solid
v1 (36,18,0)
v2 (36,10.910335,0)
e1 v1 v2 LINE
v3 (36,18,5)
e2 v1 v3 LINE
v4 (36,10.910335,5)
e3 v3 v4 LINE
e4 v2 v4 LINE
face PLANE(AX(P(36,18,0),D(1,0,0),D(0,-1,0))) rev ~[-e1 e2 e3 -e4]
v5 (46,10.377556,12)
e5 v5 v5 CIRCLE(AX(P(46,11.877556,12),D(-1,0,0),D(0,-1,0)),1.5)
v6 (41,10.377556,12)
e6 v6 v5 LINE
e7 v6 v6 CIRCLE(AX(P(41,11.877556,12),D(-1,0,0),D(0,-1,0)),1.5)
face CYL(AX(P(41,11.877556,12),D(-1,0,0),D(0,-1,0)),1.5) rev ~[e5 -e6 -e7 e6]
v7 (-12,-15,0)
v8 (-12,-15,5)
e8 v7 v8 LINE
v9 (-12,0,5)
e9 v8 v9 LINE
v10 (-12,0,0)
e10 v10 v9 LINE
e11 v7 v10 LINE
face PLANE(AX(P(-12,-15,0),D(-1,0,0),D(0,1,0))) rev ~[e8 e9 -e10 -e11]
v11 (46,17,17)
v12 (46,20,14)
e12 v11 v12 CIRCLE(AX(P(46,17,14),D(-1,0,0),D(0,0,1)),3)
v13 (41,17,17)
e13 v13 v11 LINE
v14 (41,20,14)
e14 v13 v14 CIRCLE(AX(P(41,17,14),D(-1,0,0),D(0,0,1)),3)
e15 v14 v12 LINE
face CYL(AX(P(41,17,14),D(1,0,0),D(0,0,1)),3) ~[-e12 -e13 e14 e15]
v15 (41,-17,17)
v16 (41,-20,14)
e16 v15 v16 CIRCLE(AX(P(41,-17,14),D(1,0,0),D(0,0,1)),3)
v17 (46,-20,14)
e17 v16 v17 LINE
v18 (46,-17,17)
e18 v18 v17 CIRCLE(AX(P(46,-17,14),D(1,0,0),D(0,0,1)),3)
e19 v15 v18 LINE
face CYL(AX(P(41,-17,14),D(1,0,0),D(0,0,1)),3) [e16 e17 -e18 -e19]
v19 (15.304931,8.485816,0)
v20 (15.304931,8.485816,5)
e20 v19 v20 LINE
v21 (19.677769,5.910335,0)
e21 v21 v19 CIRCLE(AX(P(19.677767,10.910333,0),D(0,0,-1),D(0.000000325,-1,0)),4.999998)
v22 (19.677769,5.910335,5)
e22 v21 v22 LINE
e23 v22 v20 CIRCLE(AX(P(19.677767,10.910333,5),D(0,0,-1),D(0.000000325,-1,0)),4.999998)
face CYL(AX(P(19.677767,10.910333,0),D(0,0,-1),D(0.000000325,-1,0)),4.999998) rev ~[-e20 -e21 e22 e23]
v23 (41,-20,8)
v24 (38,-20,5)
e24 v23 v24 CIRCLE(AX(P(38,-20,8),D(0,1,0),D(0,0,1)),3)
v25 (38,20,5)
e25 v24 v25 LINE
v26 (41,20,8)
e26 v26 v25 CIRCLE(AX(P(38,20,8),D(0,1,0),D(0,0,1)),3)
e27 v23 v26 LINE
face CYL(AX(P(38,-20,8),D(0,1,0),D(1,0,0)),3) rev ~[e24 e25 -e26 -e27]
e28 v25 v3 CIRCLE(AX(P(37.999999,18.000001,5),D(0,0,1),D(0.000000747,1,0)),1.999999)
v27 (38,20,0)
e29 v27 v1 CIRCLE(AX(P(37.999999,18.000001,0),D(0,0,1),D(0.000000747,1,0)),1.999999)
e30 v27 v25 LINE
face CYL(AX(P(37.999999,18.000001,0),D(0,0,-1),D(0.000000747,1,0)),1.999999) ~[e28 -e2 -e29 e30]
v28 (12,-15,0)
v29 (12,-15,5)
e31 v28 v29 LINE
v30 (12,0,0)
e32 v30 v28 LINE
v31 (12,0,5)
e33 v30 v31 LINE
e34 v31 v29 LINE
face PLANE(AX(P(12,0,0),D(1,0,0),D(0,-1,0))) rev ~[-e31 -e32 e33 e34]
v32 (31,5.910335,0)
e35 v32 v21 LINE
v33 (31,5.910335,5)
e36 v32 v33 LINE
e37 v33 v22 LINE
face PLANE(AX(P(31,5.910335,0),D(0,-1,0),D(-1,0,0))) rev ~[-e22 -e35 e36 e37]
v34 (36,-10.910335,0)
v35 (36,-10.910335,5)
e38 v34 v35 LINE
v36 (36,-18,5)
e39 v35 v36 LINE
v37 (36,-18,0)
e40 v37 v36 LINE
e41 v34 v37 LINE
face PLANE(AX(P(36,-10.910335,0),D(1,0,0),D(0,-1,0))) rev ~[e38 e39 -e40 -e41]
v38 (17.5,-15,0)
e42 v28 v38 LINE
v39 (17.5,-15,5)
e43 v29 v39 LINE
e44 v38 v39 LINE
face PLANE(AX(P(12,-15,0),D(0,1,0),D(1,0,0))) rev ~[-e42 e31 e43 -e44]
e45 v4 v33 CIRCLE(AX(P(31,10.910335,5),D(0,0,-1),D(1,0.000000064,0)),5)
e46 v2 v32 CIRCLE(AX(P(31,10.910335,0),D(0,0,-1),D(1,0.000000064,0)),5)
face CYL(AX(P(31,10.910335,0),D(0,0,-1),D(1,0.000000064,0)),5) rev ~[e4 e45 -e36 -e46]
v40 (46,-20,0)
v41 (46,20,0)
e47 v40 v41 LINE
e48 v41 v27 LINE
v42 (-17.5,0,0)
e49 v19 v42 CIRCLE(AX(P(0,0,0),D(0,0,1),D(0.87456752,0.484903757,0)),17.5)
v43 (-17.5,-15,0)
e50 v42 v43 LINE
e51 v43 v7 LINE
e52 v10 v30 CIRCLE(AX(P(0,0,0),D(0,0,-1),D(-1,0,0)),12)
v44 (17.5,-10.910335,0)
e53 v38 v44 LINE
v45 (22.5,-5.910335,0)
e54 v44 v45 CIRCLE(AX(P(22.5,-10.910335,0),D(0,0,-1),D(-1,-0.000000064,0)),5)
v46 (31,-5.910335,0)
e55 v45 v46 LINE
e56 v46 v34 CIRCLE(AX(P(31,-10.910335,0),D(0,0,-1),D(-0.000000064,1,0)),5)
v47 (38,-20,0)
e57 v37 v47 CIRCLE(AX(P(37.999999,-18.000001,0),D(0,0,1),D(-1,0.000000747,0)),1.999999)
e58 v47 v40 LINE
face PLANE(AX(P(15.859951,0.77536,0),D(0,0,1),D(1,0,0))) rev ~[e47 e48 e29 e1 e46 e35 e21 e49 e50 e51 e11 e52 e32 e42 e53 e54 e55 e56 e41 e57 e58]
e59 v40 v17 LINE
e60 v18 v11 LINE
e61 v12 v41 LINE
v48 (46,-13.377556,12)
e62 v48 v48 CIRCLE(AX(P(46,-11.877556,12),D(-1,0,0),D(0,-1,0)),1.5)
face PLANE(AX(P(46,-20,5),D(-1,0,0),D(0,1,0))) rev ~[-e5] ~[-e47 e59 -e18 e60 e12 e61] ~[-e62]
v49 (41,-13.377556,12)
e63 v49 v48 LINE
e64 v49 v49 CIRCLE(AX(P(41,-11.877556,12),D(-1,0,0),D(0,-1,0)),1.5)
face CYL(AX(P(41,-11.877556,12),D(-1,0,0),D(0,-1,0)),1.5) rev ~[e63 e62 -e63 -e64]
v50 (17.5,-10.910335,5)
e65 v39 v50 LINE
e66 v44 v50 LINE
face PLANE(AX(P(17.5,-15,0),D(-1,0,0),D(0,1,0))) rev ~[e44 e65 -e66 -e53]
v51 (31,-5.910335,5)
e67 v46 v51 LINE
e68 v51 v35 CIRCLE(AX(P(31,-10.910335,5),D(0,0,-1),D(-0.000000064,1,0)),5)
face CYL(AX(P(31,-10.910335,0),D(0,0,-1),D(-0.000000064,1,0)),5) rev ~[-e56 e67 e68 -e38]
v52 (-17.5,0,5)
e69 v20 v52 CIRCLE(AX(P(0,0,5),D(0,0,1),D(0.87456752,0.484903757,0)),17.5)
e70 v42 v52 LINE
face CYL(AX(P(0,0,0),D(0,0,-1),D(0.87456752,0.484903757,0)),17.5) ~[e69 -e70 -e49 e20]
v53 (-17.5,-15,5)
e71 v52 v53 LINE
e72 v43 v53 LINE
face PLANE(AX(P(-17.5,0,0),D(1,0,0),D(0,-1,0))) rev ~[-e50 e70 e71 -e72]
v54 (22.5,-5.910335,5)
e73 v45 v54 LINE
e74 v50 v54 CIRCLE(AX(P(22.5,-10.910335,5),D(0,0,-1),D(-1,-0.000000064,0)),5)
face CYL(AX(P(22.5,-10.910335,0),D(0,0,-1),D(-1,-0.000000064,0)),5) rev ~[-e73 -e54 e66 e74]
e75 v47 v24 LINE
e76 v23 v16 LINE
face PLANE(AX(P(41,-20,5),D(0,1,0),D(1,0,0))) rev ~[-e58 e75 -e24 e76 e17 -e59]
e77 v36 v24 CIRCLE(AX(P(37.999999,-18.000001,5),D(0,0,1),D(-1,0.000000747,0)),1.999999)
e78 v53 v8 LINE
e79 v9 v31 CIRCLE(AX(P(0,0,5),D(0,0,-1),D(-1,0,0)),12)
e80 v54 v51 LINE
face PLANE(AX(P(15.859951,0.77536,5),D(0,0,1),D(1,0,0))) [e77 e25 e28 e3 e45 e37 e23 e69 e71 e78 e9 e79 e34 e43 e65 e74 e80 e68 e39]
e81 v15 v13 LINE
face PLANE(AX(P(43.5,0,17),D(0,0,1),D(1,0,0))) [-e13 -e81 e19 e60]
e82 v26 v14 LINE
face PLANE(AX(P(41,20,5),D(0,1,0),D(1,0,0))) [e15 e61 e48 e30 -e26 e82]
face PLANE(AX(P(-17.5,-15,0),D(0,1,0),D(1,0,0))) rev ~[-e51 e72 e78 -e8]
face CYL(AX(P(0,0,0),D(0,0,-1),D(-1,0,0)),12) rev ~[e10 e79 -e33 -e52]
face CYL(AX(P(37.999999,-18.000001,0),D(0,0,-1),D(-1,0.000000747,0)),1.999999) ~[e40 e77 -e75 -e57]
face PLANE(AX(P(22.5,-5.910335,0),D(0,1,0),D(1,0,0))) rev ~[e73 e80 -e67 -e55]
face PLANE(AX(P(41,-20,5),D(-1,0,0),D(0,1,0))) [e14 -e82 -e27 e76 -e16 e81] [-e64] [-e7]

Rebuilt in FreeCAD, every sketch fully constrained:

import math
import FreeCAD as App
import Part
import Sketcher
Q = App.Units.Quantity


def edges_at(feature, points):
    """Names of the edges that pass closest to the given points."""
    edges = feature.Shape.Edges
    near = lambda p: min(range(len(edges)), key=lambda i: edges[i].distToShape(Part.Vertex(*p))[0])
    return sorted({f"Edge{near(p) + 1}" for p in points})

doc = App.newDocument("Part")
params = doc.addObject("Spreadsheet::Sheet", "Params")
for row, (alias, value) in enumerate([
    ("sketch1_radius", "5 mm"),
    ("sketch1_radius2", "12 mm"),
    ("sketch1_radius3", "1.999999 mm"),
    ("sketch1_radius4", "17.5 mm"),
    ("sketch1_width", "8 mm"),
    ("pad1_length", "5 mm"),
    ("sketch2_width", "5 mm"),
    ("sketch2_height", "40 mm"),
    ("pad2_length", "12 mm"),
    ("fillet_radius", "3 mm"),
    ("sketch3_diameter", "3 mm"),
    ("pocket1_length", "10 mm"),
], start=1):
    params.set(f"A{row}", alias)
    params.set(f"B{row}", "=" + value)
    params.setAlias(f"B{row}", alias)

body = doc.addObject("PartDesign::Body", "Body")

# Sketch on XY plane
sketch1 = body.newObject("Sketcher::SketchObject", "Sketch")
sketch1.AttachmentSupport = (doc.getObject("XY_Plane"), [""])
sketch1.MapMode = "FlatFace"
sketch1.addGeometry(Part.LineSegment(App.Vector(36, 18, 0), App.Vector(36, 10.910335, 0)), False)
sketch1.addGeometry(Part.ArcOfCircle(Part.Circle(App.Vector(31, 10.910335, 0), App.Vector(0, 0, 1), 5), math.radians(-90.000004), math.radians(0.000004)), False)
sketch1.addGeometry(Part.LineSegment(App.Vector(31, 5.910335, 0), App.Vector(19.677769, 5.910335, 0)), False)
sketch1.addGeometry(Part.ArcOfCircle(Part.Circle(App.Vector(19.677767, 10.910333, 0), App.Vector(0, 0, 1), 4.999998), math.radians(-150.993843), math.radians(-89.999981)), False)
sketch1.addGeometry(Part.ArcOfCircle(Part.Circle(App.Vector(0, 0, 0), App.Vector(0, 0, 1), 17.5), math.radians(29.006167), math.radians(180.000001)), False)
sketch1.addGeometry(Part.LineSegment(App.Vector(-17.5, 0, 0), App.Vector(-17.5, -15, 0)), False)
sketch1.addGeometry(Part.LineSegment(App.Vector(-17.5, -15, 0), App.Vector(-12, -15, 0)), False)
sketch1.addGeometry(Part.LineSegment(App.Vector(-12, -15, 0), App.Vector(-12, 0, 0)), False)
sketch1.addGeometry(Part.ArcOfCircle(Part.Circle(App.Vector(0, 0, 0), App.Vector(0, 0, 1), 12), math.radians(0), math.radians(180)), False)
sketch1.addGeometry(Part.LineSegment(App.Vector(12, 0, 0), App.Vector(12, -15, 0)), False)
sketch1.addGeometry(Part.LineSegment(App.Vector(12, -15, 0), App.Vector(17.5, -15, 0)), False)
sketch1.addGeometry(Part.LineSegment(App.Vector(17.5, -15, 0), App.Vector(17.5, -10.910335, 0)), False)
sketch1.addGeometry(Part.ArcOfCircle(Part.Circle(App.Vector(22.5, -10.910335, 0), App.Vector(0, 0, 1), 5), math.radians(89.999996), math.radians(180.000004)), False)
sketch1.addGeometry(Part.LineSegment(App.Vector(22.5, -5.910335, 0), App.Vector(31, -5.910335, 0)), False)
sketch1.addGeometry(Part.ArcOfCircle(Part.Circle(App.Vector(31, -10.910335, 0), App.Vector(0, 0, 1), 5), math.radians(-0.000004), math.radians(90.000004)), False)
sketch1.addGeometry(Part.LineSegment(App.Vector(36, -10.910335, 0), App.Vector(36, -18, 0)), False)
sketch1.addGeometry(Part.ArcOfCircle(Part.Circle(App.Vector(37.999999, -18.000001, 0), App.Vector(0, 0, 1), 1.999999), math.radians(179.999957), math.radians(270.000043)), False)
sketch1.addGeometry(Part.LineSegment(App.Vector(38, -20, 0), App.Vector(46, -20, 0)), False)
sketch1.addGeometry(Part.LineSegment(App.Vector(46, -20, 0), App.Vector(46, 20, 0)), False)
sketch1.addGeometry(Part.LineSegment(App.Vector(46, 20, 0), App.Vector(38, 20, 0)), False)
sketch1.addGeometry(Part.ArcOfCircle(Part.Circle(App.Vector(37.999999, 18.000001, 0), App.Vector(0, 0, 1), 1.999999), math.radians(89.999957), math.radians(180.000043)), False)
sketch1.addConstraint(Sketcher.Constraint("Tangent", 0, 2, 1, 2))
sketch1.addConstraint(Sketcher.Constraint("Tangent", 1, 1, 2, 1))
sketch1.addConstraint(Sketcher.Constraint("Tangent", 2, 2, 3, 2))
sketch1.addConstraint(Sketcher.Constraint("Tangent", 3, 1, 4, 1))
sketch1.addConstraint(Sketcher.Constraint("Tangent", 4, 2, 5, 1))
sketch1.addConstraint(Sketcher.Constraint("Coincident", 5, 2, 6, 1))
sketch1.addConstraint(Sketcher.Constraint("Coincident", 6, 2, 7, 1))
sketch1.addConstraint(Sketcher.Constraint("Tangent", 7, 2, 8, 2))
sketch1.addConstraint(Sketcher.Constraint("Tangent", 8, 1, 9, 1))
sketch1.addConstraint(Sketcher.Constraint("Coincident", 9, 2, 10, 1))
sketch1.addConstraint(Sketcher.Constraint("Coincident", 10, 2, 11, 1))
sketch1.addConstraint(Sketcher.Constraint("Tangent", 11, 2, 12, 2))
sketch1.addConstraint(Sketcher.Constraint("Tangent", 12, 1, 13, 1))
sketch1.addConstraint(Sketcher.Constraint("Tangent", 13, 2, 14, 2))
sketch1.addConstraint(Sketcher.Constraint("Tangent", 14, 1, 15, 1))
sketch1.addConstraint(Sketcher.Constraint("Tangent", 15, 2, 16, 1))
sketch1.addConstraint(Sketcher.Constraint("Tangent", 16, 2, 17, 1))
sketch1.addConstraint(Sketcher.Constraint("Coincident", 17, 2, 18, 1))
sketch1.addConstraint(Sketcher.Constraint("Coincident", 18, 2, 19, 1))
sketch1.addConstraint(Sketcher.Constraint("Tangent", 19, 2, 20, 1))
sketch1.addConstraint(Sketcher.Constraint("Tangent", 20, 2, 0, 1))
sketch1.addConstraint(Sketcher.Constraint("Vertical", 0))
sketch1.addConstraint(Sketcher.Constraint("Horizontal", 2))
sketch1.addConstraint(Sketcher.Constraint("Vertical", 5))
sketch1.addConstraint(Sketcher.Constraint("Horizontal", 6))
sketch1.addConstraint(Sketcher.Constraint("Vertical", 7))
sketch1.addConstraint(Sketcher.Constraint("Vertical", 9))
sketch1.addConstraint(Sketcher.Constraint("Horizontal", 10))
sketch1.addConstraint(Sketcher.Constraint("Vertical", 11))
sketch1.addConstraint(Sketcher.Constraint("Horizontal", 13))
sketch1.addConstraint(Sketcher.Constraint("Vertical", 15))
sketch1.addConstraint(Sketcher.Constraint("Horizontal", 17))
sketch1.addConstraint(Sketcher.Constraint("Vertical", 18))
sketch1.addConstraint(Sketcher.Constraint("Horizontal", 19))
sketch1.addConstraint(Sketcher.Constraint("Coincident", 4, 3, -1, 1))
sketch1.addConstraint(Sketcher.Constraint("Coincident", 8, 3, -1, 1))
sketch1.addConstraint(Sketcher.Constraint("Equal", 1, 3))
sketch1.addConstraint(Sketcher.Constraint("Equal", 3, 12))
sketch1.addConstraint(Sketcher.Constraint("Equal", 12, 14))
sketch1.addConstraint(Sketcher.Constraint("Equal", 16, 20))
sketch1.addConstraint(Sketcher.Constraint("Symmetric", 5, 2, 10, 2, -2))
sketch1.addConstraint(Sketcher.Constraint("Symmetric", 1, 3, 14, 3, -1))
sketch1.addConstraint(Sketcher.Constraint("Equal", 0, 15))
sketch1.addConstraint(Sketcher.Constraint("Radius", 1, Q("5 mm")))
sketch1.addConstraint(Sketcher.Constraint("Radius", 8, Q("12 mm")))
sketch1.addConstraint(Sketcher.Constraint("Radius", 16, Q("1.999999 mm")))
sketch1.addConstraint(Sketcher.Constraint("Radius", 4, Q("17.5 mm")))
sketch1.addConstraint(Sketcher.Constraint("DistanceX", 17, 1, 17, 2, Q("8 mm")))
sketch1.addConstraint(Sketcher.Constraint("DistanceY", 5, 2, 5, 1, Q("15 mm")))
sketch1.addConstraint(Sketcher.Constraint("DistanceY", 18, 1, 18, 2, Q("40 mm")))
sketch1.addConstraint(Sketcher.Constraint("DistanceX", 13, 1, 13, 2, Q("8.5 mm")))
sketch1.addConstraint(Sketcher.Constraint("DistanceX", 2, 2, 2, 1, Q("11.322231 mm")))
sketch1.setExpression("Constraints[43]", "Params.sketch1_radius")
sketch1.setExpression("Constraints[44]", "Params.sketch1_radius2")
sketch1.setExpression("Constraints[45]", "Params.sketch1_radius3")
sketch1.setExpression("Constraints[46]", "Params.sketch1_radius4")
sketch1.setExpression("Constraints[47]", "Params.sketch1_width")
pad1 = body.newObject("PartDesign::Pad", "Pad")
pad1.Profile = sketch1
pad1.setExpression("Length", "Params.pad1_length")

# Sketch on XY plane
sketch2 = body.newObject("Sketcher::SketchObject", "Sketch001")
sketch2.AttachmentSupport = (doc.getObject("XY_Plane"), [""])
sketch2.MapMode = "FlatFace"
sketch2.AttachmentOffset = App.Placement(App.Vector(0, 0, 5), App.Rotation())
sketch2.addGeometry(Part.LineSegment(App.Vector(41, 20, 0), App.Vector(41, -20, 0)), False)
sketch2.addGeometry(Part.LineSegment(App.Vector(41, -20, 0), App.Vector(46, -20, 0)), False)
sketch2.addGeometry(Part.LineSegment(App.Vector(46, -20, 0), App.Vector(46, 20, 0)), False)
sketch2.addGeometry(Part.LineSegment(App.Vector(46, 20, 0), App.Vector(41, 20, 0)), False)
sketch2.addConstraint(Sketcher.Constraint("Coincident", 0, 2, 1, 1))
sketch2.addConstraint(Sketcher.Constraint("Coincident", 1, 2, 2, 1))
sketch2.addConstraint(Sketcher.Constraint("Coincident", 2, 2, 3, 1))
sketch2.addConstraint(Sketcher.Constraint("Coincident", 3, 2, 0, 1))
sketch2.addConstraint(Sketcher.Constraint("Vertical", 0))
sketch2.addConstraint(Sketcher.Constraint("Horizontal", 1))
sketch2.addConstraint(Sketcher.Constraint("Vertical", 2))
sketch2.addConstraint(Sketcher.Constraint("Horizontal", 3))
sketch2.addConstraint(Sketcher.Constraint("DistanceX", 1, 1, 1, 2, Q("5 mm")))
sketch2.addConstraint(Sketcher.Constraint("DistanceY", 0, 2, 0, 1, Q("40 mm")))
sketch2.addConstraint(Sketcher.Constraint("DistanceX", -1, 1, 0, 2, Q("41 mm")))
sketch2.addConstraint(Sketcher.Constraint("DistanceY", 0, 2, -1, 1, Q("20 mm")))
sketch2.setExpression("Constraints[8]", "Params.sketch2_width")
sketch2.setExpression("Constraints[9]", "Params.sketch2_height")
pad2 = body.newObject("PartDesign::Pad", "Pad001")
pad2.Profile = sketch2
pad2.setExpression("Length", "Params.pad2_length")
doc.recompute()

fillet = body.newObject("PartDesign::Fillet", "Fillet")
fillet.Base = (pad2, edges_at(pad2, [(41, 0, 5), (43.5, 20, 17), (43.5, -20, 17)]))
fillet.setExpression("Radius", "Params.fillet_radius")

# Sketch on YZ plane
sketch3 = body.newObject("Sketcher::SketchObject", "Sketch002")
sketch3.AttachmentSupport = (doc.getObject("YZ_Plane"), [""])
sketch3.MapMode = "FlatFace"
sketch3.AttachmentOffset = App.Placement(App.Vector(0, 0, 41), App.Rotation())
sketch3.addGeometry(Part.Circle(App.Vector(11.877556, 12, 0), App.Vector(0, 0, 1), 1.5), False)
sketch3.addGeometry(Part.Circle(App.Vector(-11.877556, 12, 0), App.Vector(0, 0, 1), 1.5), False)
sketch3.addConstraint(Sketcher.Constraint("Equal", 0, 1))
sketch3.addConstraint(Sketcher.Constraint("Symmetric", 0, 3, 1, 3, -2))
sketch3.addConstraint(Sketcher.Constraint("Diameter", 0, Q("3 mm")))
sketch3.addConstraint(Sketcher.Constraint("DistanceY", -1, 1, 0, 3, Q("12 mm")))
sketch3.addConstraint(Sketcher.Constraint("DistanceX", -1, 1, 0, 3, Q("11.877556 mm")))
sketch3.setExpression("Constraints[2]", "Params.sketch3_diameter")
pocket1 = body.newObject("PartDesign::Pocket", "Pocket")
pocket1.Profile = sketch3
pocket1.setExpression("Length", "Params.pocket1_length")
pocket1.Reversed = True

doc.recompute()
